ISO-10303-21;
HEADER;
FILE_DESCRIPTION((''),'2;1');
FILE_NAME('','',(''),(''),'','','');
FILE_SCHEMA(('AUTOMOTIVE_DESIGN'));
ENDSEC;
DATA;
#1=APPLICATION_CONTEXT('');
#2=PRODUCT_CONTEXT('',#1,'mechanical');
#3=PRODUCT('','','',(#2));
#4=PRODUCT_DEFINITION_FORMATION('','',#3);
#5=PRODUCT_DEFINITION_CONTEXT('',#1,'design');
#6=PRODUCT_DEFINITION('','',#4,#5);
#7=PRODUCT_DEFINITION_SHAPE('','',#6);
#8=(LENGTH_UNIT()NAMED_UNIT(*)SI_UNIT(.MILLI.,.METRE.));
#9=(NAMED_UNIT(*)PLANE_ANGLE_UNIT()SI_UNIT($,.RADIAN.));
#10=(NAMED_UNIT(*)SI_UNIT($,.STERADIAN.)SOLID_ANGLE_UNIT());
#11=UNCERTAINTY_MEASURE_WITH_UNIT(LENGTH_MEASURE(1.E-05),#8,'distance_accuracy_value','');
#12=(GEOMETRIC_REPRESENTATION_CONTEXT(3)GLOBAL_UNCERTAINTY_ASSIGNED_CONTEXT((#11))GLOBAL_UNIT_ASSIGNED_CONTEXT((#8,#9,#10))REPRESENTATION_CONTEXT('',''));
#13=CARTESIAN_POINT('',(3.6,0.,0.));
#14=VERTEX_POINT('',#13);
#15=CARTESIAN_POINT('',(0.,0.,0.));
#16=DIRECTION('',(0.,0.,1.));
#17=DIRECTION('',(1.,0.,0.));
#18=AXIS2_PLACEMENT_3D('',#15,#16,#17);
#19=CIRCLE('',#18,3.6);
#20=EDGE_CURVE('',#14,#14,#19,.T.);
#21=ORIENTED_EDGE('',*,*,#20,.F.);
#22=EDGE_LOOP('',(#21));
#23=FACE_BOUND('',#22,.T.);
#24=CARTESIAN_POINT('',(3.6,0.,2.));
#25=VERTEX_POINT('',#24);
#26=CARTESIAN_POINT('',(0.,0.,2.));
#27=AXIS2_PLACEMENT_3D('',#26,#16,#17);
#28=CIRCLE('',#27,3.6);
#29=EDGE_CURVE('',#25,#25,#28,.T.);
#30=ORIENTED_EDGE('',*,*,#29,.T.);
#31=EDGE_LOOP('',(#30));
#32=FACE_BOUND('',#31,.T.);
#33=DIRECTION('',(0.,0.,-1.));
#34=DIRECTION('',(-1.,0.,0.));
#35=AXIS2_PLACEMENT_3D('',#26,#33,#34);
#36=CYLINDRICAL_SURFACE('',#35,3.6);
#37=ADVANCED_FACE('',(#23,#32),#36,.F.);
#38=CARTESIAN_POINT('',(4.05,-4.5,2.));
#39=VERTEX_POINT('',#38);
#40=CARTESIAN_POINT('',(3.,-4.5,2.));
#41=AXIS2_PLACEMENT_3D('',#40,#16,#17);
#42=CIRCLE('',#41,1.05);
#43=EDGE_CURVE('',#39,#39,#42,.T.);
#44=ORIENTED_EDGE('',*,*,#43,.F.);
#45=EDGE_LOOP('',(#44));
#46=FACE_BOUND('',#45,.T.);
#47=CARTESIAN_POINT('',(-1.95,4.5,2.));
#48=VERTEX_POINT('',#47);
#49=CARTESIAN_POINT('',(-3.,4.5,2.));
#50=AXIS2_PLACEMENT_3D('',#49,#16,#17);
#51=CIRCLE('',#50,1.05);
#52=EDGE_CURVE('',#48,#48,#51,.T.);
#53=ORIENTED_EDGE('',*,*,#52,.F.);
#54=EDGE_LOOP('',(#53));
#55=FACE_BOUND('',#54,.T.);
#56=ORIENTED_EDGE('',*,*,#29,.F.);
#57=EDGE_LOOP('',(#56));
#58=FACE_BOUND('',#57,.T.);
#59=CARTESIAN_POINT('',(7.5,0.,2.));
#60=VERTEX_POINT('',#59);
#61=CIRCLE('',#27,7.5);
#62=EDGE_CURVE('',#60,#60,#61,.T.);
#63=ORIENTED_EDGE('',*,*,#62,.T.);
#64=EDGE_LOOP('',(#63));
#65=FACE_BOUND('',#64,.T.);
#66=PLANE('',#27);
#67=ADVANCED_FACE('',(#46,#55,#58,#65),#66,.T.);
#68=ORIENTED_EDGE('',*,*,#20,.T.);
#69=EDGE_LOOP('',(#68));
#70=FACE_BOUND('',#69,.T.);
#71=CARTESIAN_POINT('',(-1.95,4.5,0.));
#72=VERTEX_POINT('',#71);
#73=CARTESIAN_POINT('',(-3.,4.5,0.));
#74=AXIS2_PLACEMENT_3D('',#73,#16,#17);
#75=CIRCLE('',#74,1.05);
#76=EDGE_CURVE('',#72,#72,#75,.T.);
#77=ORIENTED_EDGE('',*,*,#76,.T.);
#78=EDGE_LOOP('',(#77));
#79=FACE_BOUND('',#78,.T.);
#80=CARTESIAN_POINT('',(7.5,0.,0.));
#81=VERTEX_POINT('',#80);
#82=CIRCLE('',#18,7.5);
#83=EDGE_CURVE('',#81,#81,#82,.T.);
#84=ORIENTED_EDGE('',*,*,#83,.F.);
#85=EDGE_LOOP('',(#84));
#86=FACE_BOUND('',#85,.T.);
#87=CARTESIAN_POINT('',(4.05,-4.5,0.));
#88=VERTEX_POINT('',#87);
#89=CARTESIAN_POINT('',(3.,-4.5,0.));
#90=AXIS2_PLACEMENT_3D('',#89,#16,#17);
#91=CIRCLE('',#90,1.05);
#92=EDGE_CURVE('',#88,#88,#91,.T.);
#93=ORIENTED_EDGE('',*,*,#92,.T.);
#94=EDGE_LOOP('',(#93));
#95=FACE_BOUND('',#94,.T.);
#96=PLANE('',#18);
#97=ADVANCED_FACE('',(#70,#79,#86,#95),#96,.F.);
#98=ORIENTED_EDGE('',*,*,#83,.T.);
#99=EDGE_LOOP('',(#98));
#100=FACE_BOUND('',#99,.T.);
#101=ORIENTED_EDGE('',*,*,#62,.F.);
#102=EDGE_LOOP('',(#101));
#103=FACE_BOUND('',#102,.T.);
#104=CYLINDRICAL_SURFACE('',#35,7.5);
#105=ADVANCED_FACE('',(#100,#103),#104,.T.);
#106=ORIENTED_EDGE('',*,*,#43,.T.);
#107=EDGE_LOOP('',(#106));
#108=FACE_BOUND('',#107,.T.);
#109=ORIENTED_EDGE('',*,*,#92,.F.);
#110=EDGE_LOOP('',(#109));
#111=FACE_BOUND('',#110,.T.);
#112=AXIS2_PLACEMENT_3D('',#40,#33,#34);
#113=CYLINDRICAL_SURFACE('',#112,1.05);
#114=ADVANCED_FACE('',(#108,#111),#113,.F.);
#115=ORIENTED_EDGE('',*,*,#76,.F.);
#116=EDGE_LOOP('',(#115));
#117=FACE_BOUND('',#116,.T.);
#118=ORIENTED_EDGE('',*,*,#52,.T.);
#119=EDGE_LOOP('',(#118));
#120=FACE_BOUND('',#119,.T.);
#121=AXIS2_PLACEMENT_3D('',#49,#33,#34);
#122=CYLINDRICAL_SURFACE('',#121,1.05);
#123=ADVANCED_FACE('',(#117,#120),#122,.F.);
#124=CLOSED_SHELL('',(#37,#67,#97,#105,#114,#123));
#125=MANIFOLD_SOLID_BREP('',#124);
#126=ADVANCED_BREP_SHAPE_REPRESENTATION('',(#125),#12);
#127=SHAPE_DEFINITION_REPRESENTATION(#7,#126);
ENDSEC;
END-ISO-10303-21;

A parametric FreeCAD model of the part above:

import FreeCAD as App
import Part
import Sketcher
Q = App.Units.Quantity

doc = App.newDocument("Part")
params = doc.addObject("Spreadsheet::Sheet", "Params")
for row, (alias, value) in enumerate([
    ("sketch1_diameter", "15 mm"),
    ("sketch1_diameter2", "2.1 mm"),
    ("sketch1_diameter3", "7.2 mm"),
    ("pad1_length", "2 mm"),
], start=1):
    params.set(f"A{row}", alias)
    params.set(f"B{row}", "=" + value)
    params.setAlias(f"B{row}", alias)

body = doc.addObject("PartDesign::Body", "Body")

# Sketch on XY plane
sketch1 = body.newObject("Sketcher::SketchObject", "Sketch")
sketch1.AttachmentSupport = (doc.getObject("XY_Plane"), [""])
sketch1.MapMode = "FlatFace"
sketch1.addGeometry(Part.Circle(App.Vector(0, 0, 0), App.Vector(0, 0, 1), 7.5), False)
sketch1.addGeometry(Part.Circle(App.Vector(3, -4.5, 0), App.Vector(0, 0, 1), 1.1), False)
sketch1.addGeometry(Part.Circle(App.Vector(-3, 4.5, 0), App.Vector(0, 0, 1), 1.1), False)
sketch1.addGeometry(Part.Circle(App.Vector(0, 0, 0), App.Vector(0, 0, 1), 3.6), False)
sketch1.addConstraint(Sketcher.Constraint("Coincident", 0, 3, -1, 1))
sketch1.addConstraint(Sketcher.Constraint("Coincident", 3, 3, -1, 1))
sketch1.addConstraint(Sketcher.Constraint("Equal", 1, 2))
sketch1.addConstraint(Sketcher.Constraint("Symmetric", 1, 3, 2, 3, -1, 1))
sketch1.addConstraint(Sketcher.Constraint("Diameter", 0, Q("15 mm")))
sketch1.addConstraint(Sketcher.Constraint("Diameter", 1, Q("2.1 mm")))
sketch1.addConstraint(Sketcher.Constraint("Diameter", 3, Q("7.2 mm")))
sketch1.addConstraint(Sketcher.Constraint("DistanceX", -1, 1, 1, 3, Q("3 mm")))
sketch1.addConstraint(Sketcher.Constraint("DistanceY", 1, 3, 2, 3, Q("9 mm")))
sketch1.setExpression("Constraints[4]", "Params.sketch1_diameter")
sketch1.setExpression("Constraints[5]", "Params.sketch1_diameter2")
sketch1.setExpression("Constraints[6]", "Params.sketch1_diameter3")
pad1 = body.newObject("PartDesign::Pad", "Pad")
pad1.Profile = sketch1
pad1.setExpression("Length", "Params.pad1_length")

doc.recompute()
